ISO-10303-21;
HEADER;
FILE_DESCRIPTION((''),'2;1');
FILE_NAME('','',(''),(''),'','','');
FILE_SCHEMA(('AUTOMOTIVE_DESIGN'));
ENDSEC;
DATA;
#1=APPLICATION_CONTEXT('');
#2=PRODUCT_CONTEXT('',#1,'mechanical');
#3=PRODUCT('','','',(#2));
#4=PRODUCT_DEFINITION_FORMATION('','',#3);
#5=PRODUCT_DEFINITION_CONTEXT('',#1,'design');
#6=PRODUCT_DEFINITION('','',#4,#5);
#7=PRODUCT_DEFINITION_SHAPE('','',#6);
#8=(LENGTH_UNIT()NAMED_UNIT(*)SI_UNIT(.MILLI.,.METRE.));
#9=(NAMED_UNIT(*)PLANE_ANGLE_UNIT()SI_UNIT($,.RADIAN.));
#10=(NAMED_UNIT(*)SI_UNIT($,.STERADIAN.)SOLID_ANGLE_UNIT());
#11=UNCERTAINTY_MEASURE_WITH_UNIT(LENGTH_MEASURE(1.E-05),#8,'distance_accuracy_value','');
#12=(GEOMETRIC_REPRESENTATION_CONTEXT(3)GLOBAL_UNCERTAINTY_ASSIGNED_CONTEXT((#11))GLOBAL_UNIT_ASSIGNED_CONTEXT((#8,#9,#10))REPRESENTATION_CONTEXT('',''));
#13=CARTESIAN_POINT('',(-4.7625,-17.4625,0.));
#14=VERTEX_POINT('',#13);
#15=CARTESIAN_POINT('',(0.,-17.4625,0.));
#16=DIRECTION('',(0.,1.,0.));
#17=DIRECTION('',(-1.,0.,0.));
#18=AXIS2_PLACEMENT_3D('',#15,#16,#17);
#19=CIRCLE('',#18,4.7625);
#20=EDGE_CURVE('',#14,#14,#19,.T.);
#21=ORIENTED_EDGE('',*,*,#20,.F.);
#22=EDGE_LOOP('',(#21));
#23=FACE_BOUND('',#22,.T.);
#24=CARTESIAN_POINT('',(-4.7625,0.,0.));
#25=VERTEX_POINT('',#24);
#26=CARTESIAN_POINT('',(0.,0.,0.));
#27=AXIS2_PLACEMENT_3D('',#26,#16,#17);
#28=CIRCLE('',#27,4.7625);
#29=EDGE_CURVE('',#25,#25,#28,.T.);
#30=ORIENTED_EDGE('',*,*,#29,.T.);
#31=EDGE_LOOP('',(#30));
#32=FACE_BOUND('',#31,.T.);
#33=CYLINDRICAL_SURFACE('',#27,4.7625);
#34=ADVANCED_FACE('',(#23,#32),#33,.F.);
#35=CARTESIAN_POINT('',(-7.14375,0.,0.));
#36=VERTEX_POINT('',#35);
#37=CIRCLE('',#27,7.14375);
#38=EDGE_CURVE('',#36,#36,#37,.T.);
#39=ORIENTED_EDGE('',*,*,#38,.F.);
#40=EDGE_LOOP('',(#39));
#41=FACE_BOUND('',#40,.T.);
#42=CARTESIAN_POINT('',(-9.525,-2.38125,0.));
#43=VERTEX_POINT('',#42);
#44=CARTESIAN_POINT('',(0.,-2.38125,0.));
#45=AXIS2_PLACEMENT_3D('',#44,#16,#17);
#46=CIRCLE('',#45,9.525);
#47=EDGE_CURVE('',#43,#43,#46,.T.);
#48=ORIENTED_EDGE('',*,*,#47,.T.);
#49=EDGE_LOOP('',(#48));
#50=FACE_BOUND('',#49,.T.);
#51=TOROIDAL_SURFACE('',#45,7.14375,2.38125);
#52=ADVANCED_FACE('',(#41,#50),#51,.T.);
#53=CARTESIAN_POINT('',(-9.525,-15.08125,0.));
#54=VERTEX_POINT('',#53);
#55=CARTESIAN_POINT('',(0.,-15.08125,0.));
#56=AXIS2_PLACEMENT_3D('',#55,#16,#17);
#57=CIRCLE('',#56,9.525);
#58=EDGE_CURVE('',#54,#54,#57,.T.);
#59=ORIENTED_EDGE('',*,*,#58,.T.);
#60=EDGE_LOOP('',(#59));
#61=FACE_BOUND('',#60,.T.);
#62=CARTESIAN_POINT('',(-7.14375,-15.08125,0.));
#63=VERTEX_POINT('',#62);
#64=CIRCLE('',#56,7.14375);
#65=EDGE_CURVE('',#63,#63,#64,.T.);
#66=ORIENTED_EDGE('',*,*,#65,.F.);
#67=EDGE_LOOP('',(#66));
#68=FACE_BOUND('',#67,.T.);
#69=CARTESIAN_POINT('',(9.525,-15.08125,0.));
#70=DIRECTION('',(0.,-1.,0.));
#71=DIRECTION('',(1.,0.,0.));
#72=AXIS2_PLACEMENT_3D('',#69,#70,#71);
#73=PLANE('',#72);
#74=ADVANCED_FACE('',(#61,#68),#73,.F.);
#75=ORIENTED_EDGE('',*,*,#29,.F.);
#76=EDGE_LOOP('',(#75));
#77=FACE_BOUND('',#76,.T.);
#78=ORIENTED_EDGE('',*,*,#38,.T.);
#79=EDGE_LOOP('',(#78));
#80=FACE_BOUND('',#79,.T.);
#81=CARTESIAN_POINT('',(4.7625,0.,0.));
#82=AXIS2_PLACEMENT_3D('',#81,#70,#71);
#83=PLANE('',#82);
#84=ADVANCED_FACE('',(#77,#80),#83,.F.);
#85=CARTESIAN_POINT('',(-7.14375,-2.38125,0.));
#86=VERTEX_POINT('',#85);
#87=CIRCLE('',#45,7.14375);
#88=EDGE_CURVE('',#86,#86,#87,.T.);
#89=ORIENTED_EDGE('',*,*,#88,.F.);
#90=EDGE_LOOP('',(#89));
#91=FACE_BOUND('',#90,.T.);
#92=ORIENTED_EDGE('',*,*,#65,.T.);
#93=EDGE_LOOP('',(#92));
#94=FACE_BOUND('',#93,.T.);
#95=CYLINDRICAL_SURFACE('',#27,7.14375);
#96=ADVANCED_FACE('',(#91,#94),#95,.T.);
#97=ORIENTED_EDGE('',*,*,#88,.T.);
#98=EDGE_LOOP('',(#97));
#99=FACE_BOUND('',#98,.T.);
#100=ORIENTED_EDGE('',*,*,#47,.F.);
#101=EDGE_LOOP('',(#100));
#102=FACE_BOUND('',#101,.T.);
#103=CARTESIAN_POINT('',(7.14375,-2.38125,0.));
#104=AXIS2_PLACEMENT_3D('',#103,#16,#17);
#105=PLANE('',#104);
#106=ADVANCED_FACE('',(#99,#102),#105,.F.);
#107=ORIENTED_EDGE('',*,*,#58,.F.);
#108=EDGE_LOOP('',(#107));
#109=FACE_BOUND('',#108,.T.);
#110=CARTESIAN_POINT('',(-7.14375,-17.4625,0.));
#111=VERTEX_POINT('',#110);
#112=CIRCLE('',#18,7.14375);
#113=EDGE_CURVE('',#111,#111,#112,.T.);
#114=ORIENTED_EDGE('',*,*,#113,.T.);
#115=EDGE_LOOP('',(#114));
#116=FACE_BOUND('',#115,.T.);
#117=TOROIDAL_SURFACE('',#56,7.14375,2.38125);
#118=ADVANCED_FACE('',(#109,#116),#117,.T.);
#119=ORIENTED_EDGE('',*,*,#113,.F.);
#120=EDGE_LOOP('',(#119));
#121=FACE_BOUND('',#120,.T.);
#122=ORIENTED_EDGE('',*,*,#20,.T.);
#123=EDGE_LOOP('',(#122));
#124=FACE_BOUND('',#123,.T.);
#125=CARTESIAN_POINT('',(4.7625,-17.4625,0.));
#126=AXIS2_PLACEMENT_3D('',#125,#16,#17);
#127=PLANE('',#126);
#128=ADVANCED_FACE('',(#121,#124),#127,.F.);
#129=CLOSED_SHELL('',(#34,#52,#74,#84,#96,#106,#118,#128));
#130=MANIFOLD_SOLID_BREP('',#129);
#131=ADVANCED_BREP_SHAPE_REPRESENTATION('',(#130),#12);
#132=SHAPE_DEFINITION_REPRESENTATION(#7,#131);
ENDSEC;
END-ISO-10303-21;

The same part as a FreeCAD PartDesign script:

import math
import FreeCAD as App
import Part
import Sketcher

V = App.Vector
Q = App.Units.Quantity

doc = App.newDocument("Part")
body = doc.addObject("PartDesign::Body", "Body")

# Sketch on XY plane
sketch1 = body.newObject("Sketcher::SketchObject", "Sketch")
sketch1.AttachmentSupport = (doc.getObject("XY_Plane"), [""])
sketch1.MapMode = "FlatFace"
sketch1.addGeometry([
    Part.LineSegment(V(4.8, 0, 0), V(4.8, -17.5, 0)),  # 0
    Part.LineSegment(V(4.8, -17.5, 0), V(7.1, -17.5, 0)),  # 1
    Part.ArcOfCircle(Part.Circle(V(7.1, -15.1, 0), V(0, 0, 1), 2.4), math.radians(-90), math.radians(0)),  # 2
    Part.LineSegment(V(9.5, -15.1, 0), V(7.1, -15.1, 0)),  # 3
    Part.LineSegment(V(7.1, -15.1, 0), V(7.1, -2.4, 0)),  # 4
    Part.LineSegment(V(7.1, -2.4, 0), V(9.5, -2.4, 0)),  # 5
    Part.ArcOfCircle(Part.Circle(V(7.1, -2.4, 0), V(0, 0, 1), 2.4), math.radians(0), math.radians(90)),  # 6
    Part.LineSegment(V(7.1, 0, 0), V(4.8, 0, 0)),  # 7
], False)
sketch1.addConstraint([
    Sketcher.Constraint("Coincident", 0, 2, 1, 1),
    Sketcher.Constraint("Tangent", 1, 2, 2, 1),
    Sketcher.Constraint("Coincident", 2, 2, 3, 1),
    Sketcher.Constraint("Coincident", 3, 2, 4, 1),
    Sketcher.Constraint("Coincident", 4, 2, 5, 1),
    Sketcher.Constraint("Coincident", 5, 2, 6, 1),
    Sketcher.Constraint("Tangent", 6, 2, 7, 1),
    Sketcher.Constraint("Coincident", 7, 2, 0, 1),
    Sketcher.Constraint("Vertical", 0),
    Sketcher.Constraint("Horizontal", 1),
    Sketcher.Constraint("Horizontal", 3),
    Sketcher.Constraint("Vertical", 4),
    Sketcher.Constraint("Horizontal", 5),
    Sketcher.Constraint("Horizontal", 7),
    Sketcher.Constraint("Coincident", 3, 2, 2, 3),
    Sketcher.Constraint("Coincident", 4, 2, 6, 3),
    Sketcher.Constraint("Equal", 2, 6),
    Sketcher.Constraint("PointOnObject", 6, 2, -1),
    Sketcher.Constraint("Equal", 1, 3),
    Sketcher.Constraint("DistanceY", 4, 1, 4, 2, Q("0.5 in")),
    Sketcher.Constraint("Radius", 2, Q("0.09375 in")),
    Sketcher.Constraint("DistanceX", -1, 1, 2, 3, Q("0.28125 in")),
])
revolution = body.newObject("PartDesign::Revolution", "Revolution")
revolution.Profile = sketch1
revolution.ReferenceAxis = (sketch1, ["V_Axis"])
revolution.Angle = 360

doc.recompute()
